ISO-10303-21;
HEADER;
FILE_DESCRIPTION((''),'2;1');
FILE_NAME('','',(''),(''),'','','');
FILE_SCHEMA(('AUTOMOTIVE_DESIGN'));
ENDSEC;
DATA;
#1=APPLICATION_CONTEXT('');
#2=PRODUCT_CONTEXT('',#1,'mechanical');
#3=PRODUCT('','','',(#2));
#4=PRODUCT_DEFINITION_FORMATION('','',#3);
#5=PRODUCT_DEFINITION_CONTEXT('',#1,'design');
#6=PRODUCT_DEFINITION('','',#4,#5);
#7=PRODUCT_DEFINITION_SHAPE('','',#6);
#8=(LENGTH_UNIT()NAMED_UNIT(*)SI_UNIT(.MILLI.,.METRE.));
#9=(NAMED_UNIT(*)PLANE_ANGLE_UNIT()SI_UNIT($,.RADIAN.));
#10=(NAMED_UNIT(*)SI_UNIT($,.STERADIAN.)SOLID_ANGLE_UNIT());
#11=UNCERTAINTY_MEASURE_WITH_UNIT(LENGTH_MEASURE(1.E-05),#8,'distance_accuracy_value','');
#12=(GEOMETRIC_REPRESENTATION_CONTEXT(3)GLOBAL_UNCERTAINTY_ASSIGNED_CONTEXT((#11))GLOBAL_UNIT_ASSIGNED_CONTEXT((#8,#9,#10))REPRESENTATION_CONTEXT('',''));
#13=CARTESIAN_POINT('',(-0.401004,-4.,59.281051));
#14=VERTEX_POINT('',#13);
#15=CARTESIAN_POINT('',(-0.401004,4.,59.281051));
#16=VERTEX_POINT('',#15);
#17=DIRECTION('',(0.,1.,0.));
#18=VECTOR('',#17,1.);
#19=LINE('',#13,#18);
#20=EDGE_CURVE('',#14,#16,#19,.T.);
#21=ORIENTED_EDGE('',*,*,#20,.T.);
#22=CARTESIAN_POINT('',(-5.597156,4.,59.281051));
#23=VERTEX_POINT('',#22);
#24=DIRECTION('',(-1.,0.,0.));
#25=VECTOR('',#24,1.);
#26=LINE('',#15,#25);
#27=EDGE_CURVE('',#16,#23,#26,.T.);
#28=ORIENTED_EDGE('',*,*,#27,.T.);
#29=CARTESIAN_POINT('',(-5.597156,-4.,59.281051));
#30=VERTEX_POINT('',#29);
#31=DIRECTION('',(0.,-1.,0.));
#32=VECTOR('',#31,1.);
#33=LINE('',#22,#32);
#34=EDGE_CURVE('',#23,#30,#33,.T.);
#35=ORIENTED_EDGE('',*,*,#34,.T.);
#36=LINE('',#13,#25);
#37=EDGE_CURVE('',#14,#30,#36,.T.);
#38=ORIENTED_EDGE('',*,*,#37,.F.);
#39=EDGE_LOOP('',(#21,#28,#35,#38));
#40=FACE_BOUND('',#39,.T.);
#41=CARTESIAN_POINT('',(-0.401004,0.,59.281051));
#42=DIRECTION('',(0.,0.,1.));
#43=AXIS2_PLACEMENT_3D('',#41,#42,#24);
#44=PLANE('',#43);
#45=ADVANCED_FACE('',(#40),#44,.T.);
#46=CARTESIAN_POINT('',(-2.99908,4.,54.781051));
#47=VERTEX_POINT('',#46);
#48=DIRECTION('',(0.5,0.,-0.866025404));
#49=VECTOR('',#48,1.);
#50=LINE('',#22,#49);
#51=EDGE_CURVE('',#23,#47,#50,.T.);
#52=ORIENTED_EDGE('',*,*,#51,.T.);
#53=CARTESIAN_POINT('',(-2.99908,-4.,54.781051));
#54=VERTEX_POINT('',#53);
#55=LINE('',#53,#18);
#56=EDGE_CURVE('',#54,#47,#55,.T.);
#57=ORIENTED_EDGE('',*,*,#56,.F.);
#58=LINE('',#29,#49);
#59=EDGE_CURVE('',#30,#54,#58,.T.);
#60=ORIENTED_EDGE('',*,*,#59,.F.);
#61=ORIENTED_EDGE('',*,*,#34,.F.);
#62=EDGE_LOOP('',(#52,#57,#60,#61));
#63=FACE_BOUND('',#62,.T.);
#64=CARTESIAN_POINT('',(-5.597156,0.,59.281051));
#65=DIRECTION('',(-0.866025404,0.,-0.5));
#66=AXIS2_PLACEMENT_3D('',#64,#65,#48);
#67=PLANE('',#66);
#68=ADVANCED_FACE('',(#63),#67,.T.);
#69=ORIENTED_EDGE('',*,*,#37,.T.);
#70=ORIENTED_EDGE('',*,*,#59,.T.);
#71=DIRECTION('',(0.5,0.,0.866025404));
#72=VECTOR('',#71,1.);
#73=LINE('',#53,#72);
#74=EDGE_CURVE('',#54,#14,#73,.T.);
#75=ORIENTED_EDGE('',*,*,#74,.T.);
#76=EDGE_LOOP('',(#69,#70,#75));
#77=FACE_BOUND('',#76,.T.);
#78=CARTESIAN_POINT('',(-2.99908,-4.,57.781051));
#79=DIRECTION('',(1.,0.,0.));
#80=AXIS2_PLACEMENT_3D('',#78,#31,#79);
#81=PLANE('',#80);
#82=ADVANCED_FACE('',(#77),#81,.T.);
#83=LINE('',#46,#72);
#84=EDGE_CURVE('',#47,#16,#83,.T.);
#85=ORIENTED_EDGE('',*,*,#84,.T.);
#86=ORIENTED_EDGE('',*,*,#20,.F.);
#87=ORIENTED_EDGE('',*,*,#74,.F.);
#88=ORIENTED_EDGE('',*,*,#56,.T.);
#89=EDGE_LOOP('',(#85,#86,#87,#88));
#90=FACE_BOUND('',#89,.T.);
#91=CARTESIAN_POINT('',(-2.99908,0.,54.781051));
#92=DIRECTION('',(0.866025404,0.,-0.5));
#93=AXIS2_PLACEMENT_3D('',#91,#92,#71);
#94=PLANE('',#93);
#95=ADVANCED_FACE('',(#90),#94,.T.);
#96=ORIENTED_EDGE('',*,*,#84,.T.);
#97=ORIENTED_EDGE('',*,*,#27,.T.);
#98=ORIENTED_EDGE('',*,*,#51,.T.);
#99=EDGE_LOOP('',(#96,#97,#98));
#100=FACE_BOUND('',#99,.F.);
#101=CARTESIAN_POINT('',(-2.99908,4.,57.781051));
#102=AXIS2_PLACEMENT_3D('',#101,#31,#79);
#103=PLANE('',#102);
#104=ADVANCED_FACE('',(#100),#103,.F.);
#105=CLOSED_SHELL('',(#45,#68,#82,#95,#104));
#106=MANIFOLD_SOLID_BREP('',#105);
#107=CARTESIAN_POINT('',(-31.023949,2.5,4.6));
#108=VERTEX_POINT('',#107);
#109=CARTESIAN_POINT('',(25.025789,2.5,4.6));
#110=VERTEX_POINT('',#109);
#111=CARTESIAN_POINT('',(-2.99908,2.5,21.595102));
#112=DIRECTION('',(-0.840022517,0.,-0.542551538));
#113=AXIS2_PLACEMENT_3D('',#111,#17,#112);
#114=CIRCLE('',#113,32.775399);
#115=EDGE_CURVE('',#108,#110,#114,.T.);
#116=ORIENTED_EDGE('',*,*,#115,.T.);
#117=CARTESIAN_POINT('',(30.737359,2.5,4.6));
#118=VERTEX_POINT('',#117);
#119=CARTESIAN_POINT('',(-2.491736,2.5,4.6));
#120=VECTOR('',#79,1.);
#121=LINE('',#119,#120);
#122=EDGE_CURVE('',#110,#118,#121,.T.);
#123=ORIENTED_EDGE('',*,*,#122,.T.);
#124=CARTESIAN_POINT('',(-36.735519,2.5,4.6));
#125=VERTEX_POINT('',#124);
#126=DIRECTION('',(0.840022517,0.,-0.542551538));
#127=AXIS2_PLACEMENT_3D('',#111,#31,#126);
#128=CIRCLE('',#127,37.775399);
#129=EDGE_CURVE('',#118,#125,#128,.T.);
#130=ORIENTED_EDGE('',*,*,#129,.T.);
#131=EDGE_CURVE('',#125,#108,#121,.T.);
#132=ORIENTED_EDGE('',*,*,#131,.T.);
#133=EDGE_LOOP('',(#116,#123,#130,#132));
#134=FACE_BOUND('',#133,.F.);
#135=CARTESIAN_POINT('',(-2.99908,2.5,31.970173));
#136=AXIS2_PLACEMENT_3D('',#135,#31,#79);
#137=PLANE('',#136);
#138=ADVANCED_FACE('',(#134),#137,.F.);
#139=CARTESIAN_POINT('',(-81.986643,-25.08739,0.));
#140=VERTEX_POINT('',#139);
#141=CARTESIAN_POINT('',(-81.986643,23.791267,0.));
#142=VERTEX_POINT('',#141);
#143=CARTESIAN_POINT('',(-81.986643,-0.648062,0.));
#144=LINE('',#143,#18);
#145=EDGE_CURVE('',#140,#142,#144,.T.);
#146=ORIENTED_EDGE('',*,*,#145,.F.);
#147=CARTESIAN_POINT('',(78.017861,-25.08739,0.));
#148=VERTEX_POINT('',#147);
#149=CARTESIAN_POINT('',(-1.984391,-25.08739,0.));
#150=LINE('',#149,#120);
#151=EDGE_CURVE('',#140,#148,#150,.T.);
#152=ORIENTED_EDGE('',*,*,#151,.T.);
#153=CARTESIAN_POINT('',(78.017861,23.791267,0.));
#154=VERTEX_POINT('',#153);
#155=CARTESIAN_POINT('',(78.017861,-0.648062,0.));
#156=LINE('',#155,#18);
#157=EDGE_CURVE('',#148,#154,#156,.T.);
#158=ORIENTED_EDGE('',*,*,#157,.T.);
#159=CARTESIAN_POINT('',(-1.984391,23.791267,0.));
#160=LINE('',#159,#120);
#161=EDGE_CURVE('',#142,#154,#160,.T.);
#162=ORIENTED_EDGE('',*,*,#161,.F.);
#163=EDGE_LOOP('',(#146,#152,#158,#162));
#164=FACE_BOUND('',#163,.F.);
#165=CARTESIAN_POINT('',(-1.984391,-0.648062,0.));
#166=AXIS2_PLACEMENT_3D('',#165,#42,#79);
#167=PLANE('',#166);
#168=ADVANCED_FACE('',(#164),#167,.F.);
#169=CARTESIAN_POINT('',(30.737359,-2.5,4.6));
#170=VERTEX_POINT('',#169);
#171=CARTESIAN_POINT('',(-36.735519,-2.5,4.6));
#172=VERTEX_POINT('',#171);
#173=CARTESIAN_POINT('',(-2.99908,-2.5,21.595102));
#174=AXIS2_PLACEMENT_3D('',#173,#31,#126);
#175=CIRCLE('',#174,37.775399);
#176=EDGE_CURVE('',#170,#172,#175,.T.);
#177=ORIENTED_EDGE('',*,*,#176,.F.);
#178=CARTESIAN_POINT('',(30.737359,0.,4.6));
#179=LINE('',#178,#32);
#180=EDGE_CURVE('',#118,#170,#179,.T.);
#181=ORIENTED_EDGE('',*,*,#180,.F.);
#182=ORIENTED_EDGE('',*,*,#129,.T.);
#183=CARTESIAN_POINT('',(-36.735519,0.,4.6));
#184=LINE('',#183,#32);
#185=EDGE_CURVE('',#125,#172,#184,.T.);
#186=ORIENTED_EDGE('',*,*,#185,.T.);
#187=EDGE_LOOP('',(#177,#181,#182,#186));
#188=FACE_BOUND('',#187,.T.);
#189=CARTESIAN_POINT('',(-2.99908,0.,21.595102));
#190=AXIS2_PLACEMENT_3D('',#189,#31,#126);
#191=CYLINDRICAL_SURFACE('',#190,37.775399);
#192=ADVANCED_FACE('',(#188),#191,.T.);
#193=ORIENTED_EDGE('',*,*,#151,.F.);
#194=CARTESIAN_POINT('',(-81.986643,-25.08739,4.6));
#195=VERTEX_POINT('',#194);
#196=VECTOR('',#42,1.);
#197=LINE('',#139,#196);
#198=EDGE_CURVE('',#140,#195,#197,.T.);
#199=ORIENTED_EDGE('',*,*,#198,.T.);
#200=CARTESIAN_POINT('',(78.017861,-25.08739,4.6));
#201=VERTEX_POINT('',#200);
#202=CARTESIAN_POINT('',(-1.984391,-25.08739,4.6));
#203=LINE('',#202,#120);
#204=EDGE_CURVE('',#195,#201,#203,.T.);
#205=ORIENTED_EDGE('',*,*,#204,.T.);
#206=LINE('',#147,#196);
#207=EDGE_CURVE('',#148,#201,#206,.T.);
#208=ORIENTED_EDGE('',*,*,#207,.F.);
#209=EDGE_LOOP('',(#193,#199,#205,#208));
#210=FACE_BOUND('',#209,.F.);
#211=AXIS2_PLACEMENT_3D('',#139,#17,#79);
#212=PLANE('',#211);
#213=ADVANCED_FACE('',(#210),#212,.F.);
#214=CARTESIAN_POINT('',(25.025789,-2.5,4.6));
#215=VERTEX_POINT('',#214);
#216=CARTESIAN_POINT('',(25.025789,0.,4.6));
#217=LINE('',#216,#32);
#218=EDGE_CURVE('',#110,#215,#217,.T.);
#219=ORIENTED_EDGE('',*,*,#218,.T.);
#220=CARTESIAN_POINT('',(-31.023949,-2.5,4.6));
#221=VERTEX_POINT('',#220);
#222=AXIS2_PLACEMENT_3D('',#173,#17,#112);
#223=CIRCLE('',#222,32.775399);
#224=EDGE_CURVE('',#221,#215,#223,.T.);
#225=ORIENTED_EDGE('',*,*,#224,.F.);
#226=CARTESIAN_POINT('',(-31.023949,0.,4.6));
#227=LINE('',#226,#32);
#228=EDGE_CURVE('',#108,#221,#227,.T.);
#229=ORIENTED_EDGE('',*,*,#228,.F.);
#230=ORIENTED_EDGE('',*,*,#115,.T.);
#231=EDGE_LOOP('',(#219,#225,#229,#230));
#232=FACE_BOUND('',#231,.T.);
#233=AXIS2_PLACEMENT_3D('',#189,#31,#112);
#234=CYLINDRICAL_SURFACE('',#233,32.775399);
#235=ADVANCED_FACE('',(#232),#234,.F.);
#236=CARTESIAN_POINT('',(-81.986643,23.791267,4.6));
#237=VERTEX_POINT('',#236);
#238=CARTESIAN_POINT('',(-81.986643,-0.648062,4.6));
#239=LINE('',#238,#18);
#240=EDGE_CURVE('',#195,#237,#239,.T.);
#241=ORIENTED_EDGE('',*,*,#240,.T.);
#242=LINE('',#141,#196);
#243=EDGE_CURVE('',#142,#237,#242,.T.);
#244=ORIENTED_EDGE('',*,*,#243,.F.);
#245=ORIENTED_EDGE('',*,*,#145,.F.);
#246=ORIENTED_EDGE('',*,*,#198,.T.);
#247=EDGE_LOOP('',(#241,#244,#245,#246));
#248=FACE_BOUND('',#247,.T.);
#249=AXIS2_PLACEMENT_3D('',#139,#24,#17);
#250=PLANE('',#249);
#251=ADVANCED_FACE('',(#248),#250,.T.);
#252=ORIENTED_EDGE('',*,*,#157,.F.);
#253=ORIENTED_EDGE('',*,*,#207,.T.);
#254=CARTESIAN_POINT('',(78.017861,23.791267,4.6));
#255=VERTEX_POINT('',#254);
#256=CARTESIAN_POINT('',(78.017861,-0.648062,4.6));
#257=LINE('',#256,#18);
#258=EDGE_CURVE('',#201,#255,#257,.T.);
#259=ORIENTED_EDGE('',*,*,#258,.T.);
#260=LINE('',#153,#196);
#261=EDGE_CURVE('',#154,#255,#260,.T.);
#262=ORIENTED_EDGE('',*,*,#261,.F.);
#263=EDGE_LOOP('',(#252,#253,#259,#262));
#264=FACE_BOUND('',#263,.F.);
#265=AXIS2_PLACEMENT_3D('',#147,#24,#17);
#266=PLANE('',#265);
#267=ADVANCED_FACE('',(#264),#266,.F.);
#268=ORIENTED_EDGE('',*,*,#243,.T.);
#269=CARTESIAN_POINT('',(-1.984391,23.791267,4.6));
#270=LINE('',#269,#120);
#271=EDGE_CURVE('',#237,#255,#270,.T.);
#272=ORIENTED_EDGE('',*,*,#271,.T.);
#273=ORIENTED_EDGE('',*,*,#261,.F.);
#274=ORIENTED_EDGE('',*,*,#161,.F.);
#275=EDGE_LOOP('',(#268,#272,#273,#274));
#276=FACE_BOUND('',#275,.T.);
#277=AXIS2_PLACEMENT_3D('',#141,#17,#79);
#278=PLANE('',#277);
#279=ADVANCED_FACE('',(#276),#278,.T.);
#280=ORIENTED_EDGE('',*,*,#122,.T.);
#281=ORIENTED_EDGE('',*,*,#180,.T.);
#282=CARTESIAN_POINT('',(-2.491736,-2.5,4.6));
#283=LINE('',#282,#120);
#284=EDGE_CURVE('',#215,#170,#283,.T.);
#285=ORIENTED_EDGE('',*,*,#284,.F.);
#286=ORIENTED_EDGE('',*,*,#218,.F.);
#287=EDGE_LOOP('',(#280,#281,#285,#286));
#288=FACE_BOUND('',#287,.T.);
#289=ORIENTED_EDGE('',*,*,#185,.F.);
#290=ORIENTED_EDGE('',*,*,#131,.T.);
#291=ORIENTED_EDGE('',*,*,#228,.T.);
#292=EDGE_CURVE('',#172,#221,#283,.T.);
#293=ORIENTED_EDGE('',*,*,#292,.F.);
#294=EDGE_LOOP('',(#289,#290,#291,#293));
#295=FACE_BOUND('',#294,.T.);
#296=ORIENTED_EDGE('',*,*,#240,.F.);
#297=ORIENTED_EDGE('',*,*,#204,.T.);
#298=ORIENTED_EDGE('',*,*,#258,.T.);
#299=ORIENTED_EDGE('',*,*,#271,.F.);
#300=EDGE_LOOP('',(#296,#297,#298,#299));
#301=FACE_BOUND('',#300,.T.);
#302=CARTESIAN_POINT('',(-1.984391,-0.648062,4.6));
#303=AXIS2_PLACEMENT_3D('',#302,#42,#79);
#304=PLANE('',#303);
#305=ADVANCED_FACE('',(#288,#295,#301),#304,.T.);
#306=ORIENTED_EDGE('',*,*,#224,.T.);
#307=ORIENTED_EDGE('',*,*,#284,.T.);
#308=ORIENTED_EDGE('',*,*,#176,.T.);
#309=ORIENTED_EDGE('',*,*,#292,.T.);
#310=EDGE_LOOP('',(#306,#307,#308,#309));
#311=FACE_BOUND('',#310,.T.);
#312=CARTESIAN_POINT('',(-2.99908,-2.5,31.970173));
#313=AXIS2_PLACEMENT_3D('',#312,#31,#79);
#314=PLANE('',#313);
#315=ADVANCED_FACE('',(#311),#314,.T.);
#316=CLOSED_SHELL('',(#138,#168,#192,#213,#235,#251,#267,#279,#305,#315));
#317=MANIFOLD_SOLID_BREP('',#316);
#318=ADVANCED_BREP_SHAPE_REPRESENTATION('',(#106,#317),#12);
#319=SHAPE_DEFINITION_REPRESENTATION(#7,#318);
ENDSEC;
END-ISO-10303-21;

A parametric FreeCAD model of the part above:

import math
import FreeCAD as App
import Part
import Sketcher

V = App.Vector
Q = App.Units.Quantity

doc = App.newDocument("Part")
body = doc.addObject("PartDesign::Body", "Body")

# Sketch on XY plane
sketch1 = body.newObject("Sketcher::SketchObject", "Sketch")
sketch1.AttachmentSupport = (doc.getObject("XY_Plane"), [""])
sketch1.MapMode = "FlatFace"
sketch1.addGeometry([
    Part.LineSegment(V(-81.986643, 23.791267, 0), V(-81.986643, -25.08739, 0)),
    Part.LineSegment(V(-81.986643, -25.08739, 0), V(78.017861, -25.08739, 0)),
    Part.LineSegment(V(78.017861, -25.08739, 0), V(78.017861, 23.791267, 0)),
    Part.LineSegment(V(78.017861, 23.791267, 0), V(-81.986643, 23.791267, 0)),
], False)
sketch1.addConstraint([
    Sketcher.Constraint("Coincident", 0, 2, 1, 1),
    Sketcher.Constraint("Coincident", 1, 2, 2, 1),
    Sketcher.Constraint("Coincident", 2, 2, 3, 1),
    Sketcher.Constraint("Coincident", 3, 2, 0, 1),
    Sketcher.Constraint("Vertical", 0),
    Sketcher.Constraint("Horizontal", 1),
    Sketcher.Constraint("Vertical", 2),
    Sketcher.Constraint("Horizontal", 3),
    Sketcher.Constraint("DistanceX", 1, 1, 1, 2, 160.004504),
    Sketcher.Constraint("DistanceY", 0, 2, 0, 1, 48.878657),
    Sketcher.Constraint("DistanceY", 0, 2, -1, 1, 25.08739),
    Sketcher.Constraint("DistanceX", -1, 1, 1, 2, 78.017861),
])
pad1 = body.newObject("PartDesign::Pad", "Pad")
pad1.Profile = sketch1
pad1.Length = 4.6

# Sketch on XZ plane
sketch2 = body.newObject("Sketcher::SketchObject", "Sketch001")
sketch2.AttachmentSupport = (doc.getObject("XZ_Plane"), [""])
sketch2.MapMode = "FlatFace"
sketch2.addGeometry([
    Part.LineSegment(V(24.532993, 3.812758, 0), V(28.733106, 1.100001, 0)),
    Part.ArcOfCircle(Part.Circle(V(-2.99908, 21.595102, 0), V(0, 0, 1), 37.775399), math.radians(-32.857503), math.radians(212.857503)),
    Part.LineSegment(V(-34.731266, 1.100001, 0), V(-30.531153, 3.812758, 0)),
    Part.ArcOfCircle(Part.Circle(V(-2.99908, 21.595102, 0), V(0, 0, 1), 32.775399), math.radians(-32.857503), math.radians(212.857503)),
], False)
sketch2.addConstraint([
    Sketcher.Constraint("Coincident", 0, 2, 1, 1),
    Sketcher.Constraint("Coincident", 1, 2, 2, 1),
    Sketcher.Constraint("Coincident", 2, 2, 3, 2),
    Sketcher.Constraint("Coincident", 3, 1, 0, 1),
    Sketcher.Constraint("Coincident", 3, 3, 1, 3),
    Sketcher.Constraint("Horizontal", 0, 2, 1, 2),
    Sketcher.Constraint("Horizontal", 2, 2, 3, 1),
    Sketcher.Constraint("Distance", 0, 5.0),
    Sketcher.Constraint("DistanceY", -1, 1, 0, 2, 1.100001),
    Sketcher.Constraint("Radius", 1, 37.775399),
    Sketcher.Constraint("DistanceY", -1, 1, 1, 3, 21.595102),
    Sketcher.Constraint("DistanceX", 1, 3, -1, 1, 2.99908),
    Sketcher.Constraint("DistanceY", -1, 1, 2, 2, 3.812758),
])
pad2 = body.newObject("PartDesign::Pad", "Pad001")
pad2.Profile = sketch2
pad2.Length = 5
pad2.Midplane = True
body2 = doc.addObject("PartDesign::Body", "Body001")

# Sketch on XZ plane
sketch3 = body2.newObject("Sketcher::SketchObject", "Sketch002")
sketch3.AttachmentSupport = (doc.getObject("XZ_Plane001"), [""])
sketch3.MapMode = "FlatFace"
sketch3.AttachmentOffset = App.Placement(V(0, 0, 2.5), App.Rotation())
sketch3.addGeometry([
    Part.LineSegment(V(-0.401004, 59.281051, 0), V(-5.597156, 59.281051, 0)),
    Part.LineSegment(V(-5.597156, 59.281051, 0), V(-2.99908, 54.781051, 0)),
    Part.LineSegment(V(-2.99908, 54.781051, 0), V(-0.401004, 59.281051, 0)),
], False)
sketch3.addConstraint([
    Sketcher.Constraint("Coincident", 0, 2, 1, 1),
    Sketcher.Constraint("Coincident", 1, 2, 2, 1),
    Sketcher.Constraint("Coincident", 2, 2, 0, 1),
    Sketcher.Constraint("Horizontal", 0),
    Sketcher.Constraint("Equal", 1, 2),
    Sketcher.Constraint("Angle", 1, Q("-60 deg")),
    Sketcher.Constraint("DistanceY", 1, 2, 0, 2, 4.5),
    Sketcher.Constraint("DistanceY", -1, 1, 0, 2, 59.281051),
    Sketcher.Constraint("DistanceX", 1, 2, -1, 1, 2.99908),
])
pad3 = body2.newObject("PartDesign::Pad", "Pad002")
pad3.Profile = sketch3
pad3.Length = 8
pad3.Midplane = True
body3 = doc.addObject("PartDesign::Body", "Body002")
doc.recompute()

body2.Placement = App.Placement(V(0, 2.5, 0), App.Rotation(V(0, 0, 1), 0))
boolean = body3.newObject("PartDesign::Boolean", "Boolean")
boolean.Type = "Fuse"
boolean.addObjects([body2])

doc.recompute()
